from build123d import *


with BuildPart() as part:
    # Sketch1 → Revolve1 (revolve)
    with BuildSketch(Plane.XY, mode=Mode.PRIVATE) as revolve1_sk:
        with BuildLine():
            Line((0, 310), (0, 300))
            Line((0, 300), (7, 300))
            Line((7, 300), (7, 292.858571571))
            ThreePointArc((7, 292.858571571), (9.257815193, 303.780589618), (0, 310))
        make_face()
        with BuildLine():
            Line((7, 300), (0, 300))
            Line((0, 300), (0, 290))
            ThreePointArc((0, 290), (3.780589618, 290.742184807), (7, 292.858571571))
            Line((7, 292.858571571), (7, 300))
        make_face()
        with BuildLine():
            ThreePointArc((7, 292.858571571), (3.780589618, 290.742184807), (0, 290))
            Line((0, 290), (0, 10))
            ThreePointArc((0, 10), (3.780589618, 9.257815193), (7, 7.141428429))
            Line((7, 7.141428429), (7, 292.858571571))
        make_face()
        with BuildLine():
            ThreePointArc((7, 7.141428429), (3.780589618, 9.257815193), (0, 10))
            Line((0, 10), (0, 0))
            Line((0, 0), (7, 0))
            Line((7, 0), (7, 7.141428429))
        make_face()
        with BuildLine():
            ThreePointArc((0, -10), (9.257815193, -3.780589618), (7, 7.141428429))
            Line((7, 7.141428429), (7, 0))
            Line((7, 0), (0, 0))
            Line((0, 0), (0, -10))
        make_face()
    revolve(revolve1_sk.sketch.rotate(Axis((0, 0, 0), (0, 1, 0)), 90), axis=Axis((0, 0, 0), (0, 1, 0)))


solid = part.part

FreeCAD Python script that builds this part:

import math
import FreeCAD as App
import Part
import Sketcher
from FreeCAD import Vector
Q = App.Units.Quantity

doc = App.newDocument("Part")
body = doc.addObject("PartDesign::Body", "Body")

# Sketch on XY plane
sketch1 = doc.addObject("Sketcher::SketchObject", "Sketch")
body.addObject(sketch1)
sketch1.AttachmentSupport = (doc.XY_Plane, [""])
sketch1.MapMode = "FlatFace"
sketch1.addGeometry([
    Part.LineSegment(Vector(0, 310, 0), Vector(0, -10, 0)),
    Part.ArcOfCircle(Part.Circle(Vector(0, 0, 0), Vector(0, 0, 1), 10), math.radians(-90), math.radians(46)),
    Part.LineSegment(Vector(7, 7, 0), Vector(7, 293, 0)),
    Part.ArcOfCircle(Part.Circle(Vector(0, 300, 0), Vector(0, 0, 1), 10), math.radians(-46), math.radians(90)),
], False)
sketch1.addConstraint([
    Sketcher.Constraint("Coincident", 0, 2, 1, 1),
    Sketcher.Constraint("Coincident", 1, 2, 2, 1),
    Sketcher.Constraint("Coincident", 2, 2, 3, 1),
    Sketcher.Constraint("Coincident", 3, 2, 0, 1),
    Sketcher.Constraint("Vertical", 0),
    Sketcher.Constraint("Vertical", 2),
    Sketcher.Constraint("Coincident", 1, 3, -1, 1),
    Sketcher.Constraint("Equal", 1, 3),
    Sketcher.Constraint("PointOnObject", 3, 3, -2),
    Sketcher.Constraint("PointOnObject", 0, 2, -2),
    Sketcher.Constraint("Radius", 1, Q("10 mm")),
    Sketcher.Constraint("DistanceY", 0, 2, 0, 1, Q("320 mm")),
    Sketcher.Constraint("DistanceX", -1, 1, 1, 2, Q("7 mm")),
])
revolution = doc.addObject("PartDesign::Revolution", "Revolution")
body.addObject(revolution)
revolution.Profile = sketch1
revolution.ReferenceAxis = (sketch1, ["V_Axis"])
revolution.Angle = 360

doc.recompute()
